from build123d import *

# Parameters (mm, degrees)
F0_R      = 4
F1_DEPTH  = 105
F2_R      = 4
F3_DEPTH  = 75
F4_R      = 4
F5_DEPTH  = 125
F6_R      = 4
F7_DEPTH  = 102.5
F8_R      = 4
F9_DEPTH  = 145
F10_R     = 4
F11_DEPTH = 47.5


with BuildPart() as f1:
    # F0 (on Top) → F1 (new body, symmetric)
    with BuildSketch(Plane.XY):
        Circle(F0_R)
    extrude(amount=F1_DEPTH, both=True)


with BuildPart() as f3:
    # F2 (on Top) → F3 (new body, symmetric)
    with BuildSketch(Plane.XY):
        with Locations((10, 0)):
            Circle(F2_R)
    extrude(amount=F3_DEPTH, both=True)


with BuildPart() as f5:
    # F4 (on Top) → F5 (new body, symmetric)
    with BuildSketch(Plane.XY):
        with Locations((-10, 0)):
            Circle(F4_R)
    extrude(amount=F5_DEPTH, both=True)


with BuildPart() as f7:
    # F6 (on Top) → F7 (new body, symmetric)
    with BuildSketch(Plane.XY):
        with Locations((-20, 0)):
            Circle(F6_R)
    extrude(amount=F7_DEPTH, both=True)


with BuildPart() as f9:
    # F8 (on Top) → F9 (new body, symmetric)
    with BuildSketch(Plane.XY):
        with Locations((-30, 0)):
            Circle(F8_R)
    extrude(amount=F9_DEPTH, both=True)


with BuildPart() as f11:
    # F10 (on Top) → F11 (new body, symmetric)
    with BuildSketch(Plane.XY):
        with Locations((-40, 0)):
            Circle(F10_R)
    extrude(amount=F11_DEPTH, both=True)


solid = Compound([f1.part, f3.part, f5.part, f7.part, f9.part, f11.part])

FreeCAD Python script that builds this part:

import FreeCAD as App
import Part
import Sketcher

V = App.Vector
Q = App.Units.Quantity

doc = App.newDocument("Part")
body = doc.addObject("PartDesign::Body", "Body")

# Sketch on XY plane
sketch1 = doc.addObject("Sketcher::SketchObject", "Sketch")
body.addObject(sketch1)
sketch1.AttachmentSupport = (doc.XY_Plane, [""])
sketch1.MapMode = "FlatFace"
sketch1.addGeometry(Part.Circle(V(0, 0, 0), V(0, 0, 1), 4), False)
sketch1.addConstraint(Sketcher.Constraint("Coincident", 0, 3, -1, 1))
sketch1.addConstraint(Sketcher.Constraint("Diameter", 0, Q("8 mm")))
pad1 = doc.addObject("PartDesign::Pad", "Pad")
body.addObject(pad1)
pad1.Profile = sketch1
pad1.Length = 210
pad1.Midplane = True
body2 = doc.addObject("PartDesign::Body", "Body001")

# Sketch on XY plane
sketch2 = doc.addObject("Sketcher::SketchObject", "Sketch001")
body2.addObject(sketch2)
sketch2.AttachmentSupport = (doc.getObject("XY_Plane001"), [""])
sketch2.MapMode = "FlatFace"
sketch2.addGeometry(Part.Circle(V(10, 0, 0), V(0, 0, 1), 4), False)
sketch2.addConstraint(Sketcher.Constraint("PointOnObject", 0, 3, -1))
sketch2.addConstraint(Sketcher.Constraint("Diameter", 0, Q("8 mm")))
sketch2.addConstraint(Sketcher.Constraint("DistanceX", -1, 1, 0, 3, Q("10 mm")))
pad2 = doc.addObject("PartDesign::Pad", "Pad001")
body2.addObject(pad2)
pad2.Profile = sketch2
pad2.Length = 150
pad2.Midplane = True
body3 = doc.addObject("PartDesign::Body", "Body002")

# Sketch on XY plane
sketch3 = doc.addObject("Sketcher::SketchObject", "Sketch002")
body3.addObject(sketch3)
sketch3.AttachmentSupport = (doc.getObject("XY_Plane002"), [""])
sketch3.MapMode = "FlatFace"
sketch3.addGeometry(Part.Circle(V(-10, 0, 0), V(0, 0, 1), 4), False)
sketch3.addConstraint(Sketcher.Constraint("PointOnObject", 0, 3, -1))
sketch3.addConstraint(Sketcher.Constraint("Diameter", 0, Q("8 mm")))
sketch3.addConstraint(Sketcher.Constraint("DistanceX", 0, 3, -1, 1, Q("10 mm")))
pad3 = doc.addObject("PartDesign::Pad", "Pad002")
body3.addObject(pad3)
pad3.Profile = sketch3
pad3.Length = 250
pad3.Midplane = True
body4 = doc.addObject("PartDesign::Body", "Body003")

# Sketch on XY plane
sketch4 = doc.addObject("Sketcher::SketchObject", "Sketch003")
body4.addObject(sketch4)
sketch4.AttachmentSupport = (doc.getObject("XY_Plane003"), [""])
sketch4.MapMode = "FlatFace"
sketch4.addGeometry(Part.Circle(V(-20, 0, 0), V(0, 0, 1), 4), False)
sketch4.addConstraint(Sketcher.Constraint("PointOnObject", 0, 3, -1))
sketch4.addConstraint(Sketcher.Constraint("Diameter", 0, Q("8 mm")))
sketch4.addConstraint(Sketcher.Constraint("DistanceX", 0, 3, -1, 1, Q("20 mm")))
pad4 = doc.addObject("PartDesign::Pad", "Pad003")
body4.addObject(pad4)
pad4.Profile = sketch4
pad4.Length = 205
pad4.Midplane = True
body5 = doc.addObject("PartDesign::Body", "Body004")

# Sketch on XY plane
sketch5 = doc.addObject("Sketcher::SketchObject", "Sketch004")
body5.addObject(sketch5)
sketch5.AttachmentSupport = (doc.getObject("XY_Plane004"), [""])
sketch5.MapMode = "FlatFace"
sketch5.addGeometry(Part.Circle(V(-30, 0, 0), V(0, 0, 1), 4), False)
sketch5.addConstraint(Sketcher.Constraint("PointOnObject", 0, 3, -1))
sketch5.addConstraint(Sketcher.Constraint("Diameter", 0, Q("8 mm")))
sketch5.addConstraint(Sketcher.Constraint("DistanceX", 0, 3, -1, 1, Q("30 mm")))
pad5 = doc.addObject("PartDesign::Pad", "Pad004")
body5.addObject(pad5)
pad5.Profile = sketch5
pad5.Length = 290
pad5.Midplane = True
body6 = doc.addObject("PartDesign::Body", "Body005")

# Sketch on XY plane
sketch6 = doc.addObject("Sketcher::SketchObject", "Sketch005")
body6.addObject(sketch6)
sketch6.AttachmentSupport = (doc.getObject("XY_Plane005"), [""])
sketch6.MapMode = "FlatFace"
sketch6.addGeometry(Part.Circle(V(-40, 0, 0), V(0, 0, 1), 4), False)
sketch6.addConstraint(Sketcher.Constraint("PointOnObject", 0, 3, -1))
sketch6.addConstraint(Sketcher.Constraint("Diameter", 0, Q("8 mm")))
sketch6.addConstraint(Sketcher.Constraint("DistanceX", 0, 3, -1, 1, Q("40 mm")))
pad6 = doc.addObject("PartDesign::Pad", "Pad005")
body6.addObject(pad6)
pad6.Profile = sketch6
pad6.Length = 95
pad6.Midplane = True

doc.recompute()
